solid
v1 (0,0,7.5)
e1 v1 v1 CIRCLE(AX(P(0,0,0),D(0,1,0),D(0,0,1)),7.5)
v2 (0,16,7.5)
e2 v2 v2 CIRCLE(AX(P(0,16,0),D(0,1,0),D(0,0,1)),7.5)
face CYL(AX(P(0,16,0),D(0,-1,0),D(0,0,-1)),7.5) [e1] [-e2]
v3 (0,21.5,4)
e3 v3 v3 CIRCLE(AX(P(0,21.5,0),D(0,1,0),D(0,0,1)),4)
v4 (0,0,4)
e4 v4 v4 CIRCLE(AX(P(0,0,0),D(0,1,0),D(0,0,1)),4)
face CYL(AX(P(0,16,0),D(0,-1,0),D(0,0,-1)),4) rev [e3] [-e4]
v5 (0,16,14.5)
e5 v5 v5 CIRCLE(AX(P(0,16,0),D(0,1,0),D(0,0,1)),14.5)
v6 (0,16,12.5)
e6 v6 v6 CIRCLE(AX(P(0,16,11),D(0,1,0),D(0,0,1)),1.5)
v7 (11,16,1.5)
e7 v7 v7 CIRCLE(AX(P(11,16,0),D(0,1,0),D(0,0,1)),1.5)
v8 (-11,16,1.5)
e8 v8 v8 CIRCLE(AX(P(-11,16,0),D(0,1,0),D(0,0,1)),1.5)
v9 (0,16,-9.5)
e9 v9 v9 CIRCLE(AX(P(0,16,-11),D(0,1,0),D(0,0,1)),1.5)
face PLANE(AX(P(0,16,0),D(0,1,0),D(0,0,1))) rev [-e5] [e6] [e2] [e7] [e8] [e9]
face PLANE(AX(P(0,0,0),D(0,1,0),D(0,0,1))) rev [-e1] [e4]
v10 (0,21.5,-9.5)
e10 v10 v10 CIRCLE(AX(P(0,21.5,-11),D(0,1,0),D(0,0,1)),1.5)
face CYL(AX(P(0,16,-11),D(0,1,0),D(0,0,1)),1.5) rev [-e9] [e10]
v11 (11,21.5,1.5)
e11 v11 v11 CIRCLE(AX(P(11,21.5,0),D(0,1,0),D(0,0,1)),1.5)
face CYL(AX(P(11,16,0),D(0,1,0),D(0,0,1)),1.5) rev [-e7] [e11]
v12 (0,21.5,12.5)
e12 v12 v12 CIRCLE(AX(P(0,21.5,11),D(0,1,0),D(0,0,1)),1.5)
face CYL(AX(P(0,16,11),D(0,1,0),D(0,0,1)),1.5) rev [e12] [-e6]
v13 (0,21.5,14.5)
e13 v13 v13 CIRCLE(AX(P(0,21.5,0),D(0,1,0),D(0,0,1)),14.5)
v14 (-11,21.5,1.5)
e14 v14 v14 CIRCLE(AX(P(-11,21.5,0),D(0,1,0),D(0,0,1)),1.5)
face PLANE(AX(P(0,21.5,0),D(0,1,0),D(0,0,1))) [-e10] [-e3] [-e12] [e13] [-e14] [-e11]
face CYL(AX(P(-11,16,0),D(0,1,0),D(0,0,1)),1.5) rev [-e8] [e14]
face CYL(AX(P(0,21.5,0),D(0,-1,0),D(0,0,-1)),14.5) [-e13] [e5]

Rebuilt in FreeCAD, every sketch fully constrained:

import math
import FreeCAD as App
import Part
import Sketcher
from FreeCAD import Vector

doc = App.newDocument("Part")
body = doc.addObject("PartDesign::Body", "Body")

# Sketch on XZ plane
sketch1 = body.newObject("Sketcher::SketchObject", "Sketch")
sketch1.AttachmentSupport = (doc.getObject("XZ_Plane"), [""])
sketch1.MapMode = "FlatFace"
sketch1.addGeometry([
    Part.Circle(Vector(0, 0, 0), Vector(0, 0, 1), 7.5),
    Part.Circle(Vector(0, 0, 0), Vector(0, 0, 1), 4),
], False)
sketch1.addConstraint([
    Sketcher.Constraint("Coincident", 0, 3, -1, 1),
    Sketcher.Constraint("Coincident", 1, 3, -1, 1),
    Sketcher.Constraint("Diameter", 0, 15.0),
    Sketcher.Constraint("Diameter", 1, 8.0),
])
pad1 = body.newObject("PartDesign::Pad", "Pad")
pad1.Profile = sketch1
pad1.Length = 16
pad1.Reversed = True
body2 = doc.addObject("PartDesign::Body", "Body001")

# Sketch on XZ plane
sketch2 = body2.newObject("Sketcher::SketchObject", "Sketch001")
sketch2.AttachmentSupport = (doc.getObject("XZ_Plane001"), [""])
sketch2.MapMode = "FlatFace"
sketch2.AttachmentOffset = App.Placement(Vector(0, 0, -16), App.Rotation())
sketch2.addGeometry([
    Part.Circle(Vector(0, 0, 0), Vector(0, 0, 1), 14),
    Part.Circle(Vector(0, 0, 0), Vector(0, 0, 1), 8),
], False)
sketch2.addConstraint([
    Sketcher.Constraint("Coincident", 0, 3, -1, 1),
    Sketcher.Constraint("Coincident", 1, 3, -1, 1),
    Sketcher.Constraint("Diameter", 0, 29.0),
    Sketcher.Constraint("Diameter", 1, 15.0),
])
pad2 = body2.newObject("PartDesign::Pad", "Pad001")
pad2.Profile = sketch2
pad2.Length = 5.5
pad2.Reversed = True
body.AllowCompound = True
doc.recompute()

boolean = body.newObject("PartDesign::Boolean", "Boolean")
boolean.Type = "Fuse"
boolean.addObjects([body2])

# Sketch on XZ plane
sketch3 = body.newObject("Sketcher::SketchObject", "Sketch002")
sketch3.AttachmentSupport = (doc.getObject("XZ_Plane"), [""])
sketch3.MapMode = "FlatFace"
sketch3.AttachmentOffset = App.Placement(Vector(0, 0, -16), App.Rotation())
sketch3.addGeometry([
    Part.Circle(Vector(0, 0, 0), Vector(0, 0, 1), 7.5),
    Part.Circle(Vector(0, 0, 0), Vector(0, 0, 1), 4),
], False)
sketch3.addConstraint([
    Sketcher.Constraint("Coincident", 0, 3, -1, 1),
    Sketcher.Constraint("Coincident", 1, 3, -1, 1),
    Sketcher.Constraint("Diameter", 0, 15.0),
    Sketcher.Constraint("Diameter", 1, 8.0),
])
pad3 = body.newObject("PartDesign::Pad", "Pad002")
pad3.Profile = sketch3
pad3.Length = 5.5
pad3.Reversed = True

# Sketch on XZ plane
sketch4 = body.newObject("Sketcher::SketchObject", "Sketch003")
sketch4.AttachmentSupport = (doc.getObject("XZ_Plane"), [""])
sketch4.MapMode = "FlatFace"
sketch4.AttachmentOffset = App.Placement(Vector(0, 0, -21.5), App.Rotation())
sketch4.addGeometry([
    Part.Circle(Vector(11, 0, 0), Vector(0, 0, 1), 1.5),  # 0
    Part.ArcOfCircle(Part.Circle(Vector(0, 11, 0), Vector(0, 0, 1), 1.5), math.radians(-90), math.radians(0)),  # 1
    Part.ArcOfCircle(Part.Circle(Vector(0, 11, 0), Vector(0, 0, 1), 1.5), math.radians(90), math.radians(270)),  # 2
    Part.ArcOfCircle(Part.Circle(Vector(0, 11, 0), Vector(0, 0, 1), 1.5), math.radians(0), math.radians(90)),  # 3
    Part.Circle(Vector(-11, 0, 0), Vector(0, 0, 1), 1.5),  # 4
    Part.ArcOfCircle(Part.Circle(Vector(0, -11, 0), Vector(0, 0, 1), 1.5), math.radians(-90), math.radians(0)),  # 5
    Part.ArcOfCircle(Part.Circle(Vector(0, -11, 0), Vector(0, 0, 1), 1.5), math.radians(90), math.radians(270)),  # 6
    Part.ArcOfCircle(Part.Circle(Vector(0, -11, 0), Vector(0, 0, 1), 1.5), math.radians(0), math.radians(90)),  # 7
], False)
sketch4.addConstraint([
    Sketcher.Constraint("Tangent", 1, 1, 2, 2),
    Sketcher.Constraint("Tangent", 2, 1, 3, 2),
    Sketcher.Constraint("Tangent", 3, 1, 1, 2),
    Sketcher.Constraint("Tangent", 5, 1, 6, 2),
    Sketcher.Constraint("Tangent", 6, 1, 7, 2),
    Sketcher.Constraint("Tangent", 7, 1, 5, 2),
    Sketcher.Constraint("Equal", 0, 1),
    Sketcher.Constraint("Equal", 3, 4),
    Sketcher.Constraint("Equal", 4, 5),
    Sketcher.Constraint("Symmetric", 0, 3, 4, 3, -1, 1),
    Sketcher.Constraint("Symmetric", 1, 3, 5, 3, -1, 1),
    Sketcher.Constraint("Symmetric", 3, 1, 7, 1, -1),
    Sketcher.Constraint("PointOnObject", 0, 3, -1),
    Sketcher.Constraint("PointOnObject", 1, 1, -2),
    Sketcher.Constraint("PointOnObject", 2, 1, -2),
    Sketcher.Constraint("PointOnObject", 5, 1, -2),
    Sketcher.Constraint("PointOnObject", 6, 1, -2),
    Sketcher.Constraint("Horizontal", 2, 3, 3, 1),
    Sketcher.Constraint("Diameter", 0, 3.0),
    Sketcher.Constraint("DistanceX", -1, 1, 0, 3, 11.0),
    Sketcher.Constraint("DistanceY", -1, 1, 1, 3, 11.0),
])
pocket1 = body.newObject("PartDesign::Pocket", "Pocket")
pocket1.Profile = sketch4
pocket1.Length = 5.5
pocket1.Reversed = True

doc.recompute()
